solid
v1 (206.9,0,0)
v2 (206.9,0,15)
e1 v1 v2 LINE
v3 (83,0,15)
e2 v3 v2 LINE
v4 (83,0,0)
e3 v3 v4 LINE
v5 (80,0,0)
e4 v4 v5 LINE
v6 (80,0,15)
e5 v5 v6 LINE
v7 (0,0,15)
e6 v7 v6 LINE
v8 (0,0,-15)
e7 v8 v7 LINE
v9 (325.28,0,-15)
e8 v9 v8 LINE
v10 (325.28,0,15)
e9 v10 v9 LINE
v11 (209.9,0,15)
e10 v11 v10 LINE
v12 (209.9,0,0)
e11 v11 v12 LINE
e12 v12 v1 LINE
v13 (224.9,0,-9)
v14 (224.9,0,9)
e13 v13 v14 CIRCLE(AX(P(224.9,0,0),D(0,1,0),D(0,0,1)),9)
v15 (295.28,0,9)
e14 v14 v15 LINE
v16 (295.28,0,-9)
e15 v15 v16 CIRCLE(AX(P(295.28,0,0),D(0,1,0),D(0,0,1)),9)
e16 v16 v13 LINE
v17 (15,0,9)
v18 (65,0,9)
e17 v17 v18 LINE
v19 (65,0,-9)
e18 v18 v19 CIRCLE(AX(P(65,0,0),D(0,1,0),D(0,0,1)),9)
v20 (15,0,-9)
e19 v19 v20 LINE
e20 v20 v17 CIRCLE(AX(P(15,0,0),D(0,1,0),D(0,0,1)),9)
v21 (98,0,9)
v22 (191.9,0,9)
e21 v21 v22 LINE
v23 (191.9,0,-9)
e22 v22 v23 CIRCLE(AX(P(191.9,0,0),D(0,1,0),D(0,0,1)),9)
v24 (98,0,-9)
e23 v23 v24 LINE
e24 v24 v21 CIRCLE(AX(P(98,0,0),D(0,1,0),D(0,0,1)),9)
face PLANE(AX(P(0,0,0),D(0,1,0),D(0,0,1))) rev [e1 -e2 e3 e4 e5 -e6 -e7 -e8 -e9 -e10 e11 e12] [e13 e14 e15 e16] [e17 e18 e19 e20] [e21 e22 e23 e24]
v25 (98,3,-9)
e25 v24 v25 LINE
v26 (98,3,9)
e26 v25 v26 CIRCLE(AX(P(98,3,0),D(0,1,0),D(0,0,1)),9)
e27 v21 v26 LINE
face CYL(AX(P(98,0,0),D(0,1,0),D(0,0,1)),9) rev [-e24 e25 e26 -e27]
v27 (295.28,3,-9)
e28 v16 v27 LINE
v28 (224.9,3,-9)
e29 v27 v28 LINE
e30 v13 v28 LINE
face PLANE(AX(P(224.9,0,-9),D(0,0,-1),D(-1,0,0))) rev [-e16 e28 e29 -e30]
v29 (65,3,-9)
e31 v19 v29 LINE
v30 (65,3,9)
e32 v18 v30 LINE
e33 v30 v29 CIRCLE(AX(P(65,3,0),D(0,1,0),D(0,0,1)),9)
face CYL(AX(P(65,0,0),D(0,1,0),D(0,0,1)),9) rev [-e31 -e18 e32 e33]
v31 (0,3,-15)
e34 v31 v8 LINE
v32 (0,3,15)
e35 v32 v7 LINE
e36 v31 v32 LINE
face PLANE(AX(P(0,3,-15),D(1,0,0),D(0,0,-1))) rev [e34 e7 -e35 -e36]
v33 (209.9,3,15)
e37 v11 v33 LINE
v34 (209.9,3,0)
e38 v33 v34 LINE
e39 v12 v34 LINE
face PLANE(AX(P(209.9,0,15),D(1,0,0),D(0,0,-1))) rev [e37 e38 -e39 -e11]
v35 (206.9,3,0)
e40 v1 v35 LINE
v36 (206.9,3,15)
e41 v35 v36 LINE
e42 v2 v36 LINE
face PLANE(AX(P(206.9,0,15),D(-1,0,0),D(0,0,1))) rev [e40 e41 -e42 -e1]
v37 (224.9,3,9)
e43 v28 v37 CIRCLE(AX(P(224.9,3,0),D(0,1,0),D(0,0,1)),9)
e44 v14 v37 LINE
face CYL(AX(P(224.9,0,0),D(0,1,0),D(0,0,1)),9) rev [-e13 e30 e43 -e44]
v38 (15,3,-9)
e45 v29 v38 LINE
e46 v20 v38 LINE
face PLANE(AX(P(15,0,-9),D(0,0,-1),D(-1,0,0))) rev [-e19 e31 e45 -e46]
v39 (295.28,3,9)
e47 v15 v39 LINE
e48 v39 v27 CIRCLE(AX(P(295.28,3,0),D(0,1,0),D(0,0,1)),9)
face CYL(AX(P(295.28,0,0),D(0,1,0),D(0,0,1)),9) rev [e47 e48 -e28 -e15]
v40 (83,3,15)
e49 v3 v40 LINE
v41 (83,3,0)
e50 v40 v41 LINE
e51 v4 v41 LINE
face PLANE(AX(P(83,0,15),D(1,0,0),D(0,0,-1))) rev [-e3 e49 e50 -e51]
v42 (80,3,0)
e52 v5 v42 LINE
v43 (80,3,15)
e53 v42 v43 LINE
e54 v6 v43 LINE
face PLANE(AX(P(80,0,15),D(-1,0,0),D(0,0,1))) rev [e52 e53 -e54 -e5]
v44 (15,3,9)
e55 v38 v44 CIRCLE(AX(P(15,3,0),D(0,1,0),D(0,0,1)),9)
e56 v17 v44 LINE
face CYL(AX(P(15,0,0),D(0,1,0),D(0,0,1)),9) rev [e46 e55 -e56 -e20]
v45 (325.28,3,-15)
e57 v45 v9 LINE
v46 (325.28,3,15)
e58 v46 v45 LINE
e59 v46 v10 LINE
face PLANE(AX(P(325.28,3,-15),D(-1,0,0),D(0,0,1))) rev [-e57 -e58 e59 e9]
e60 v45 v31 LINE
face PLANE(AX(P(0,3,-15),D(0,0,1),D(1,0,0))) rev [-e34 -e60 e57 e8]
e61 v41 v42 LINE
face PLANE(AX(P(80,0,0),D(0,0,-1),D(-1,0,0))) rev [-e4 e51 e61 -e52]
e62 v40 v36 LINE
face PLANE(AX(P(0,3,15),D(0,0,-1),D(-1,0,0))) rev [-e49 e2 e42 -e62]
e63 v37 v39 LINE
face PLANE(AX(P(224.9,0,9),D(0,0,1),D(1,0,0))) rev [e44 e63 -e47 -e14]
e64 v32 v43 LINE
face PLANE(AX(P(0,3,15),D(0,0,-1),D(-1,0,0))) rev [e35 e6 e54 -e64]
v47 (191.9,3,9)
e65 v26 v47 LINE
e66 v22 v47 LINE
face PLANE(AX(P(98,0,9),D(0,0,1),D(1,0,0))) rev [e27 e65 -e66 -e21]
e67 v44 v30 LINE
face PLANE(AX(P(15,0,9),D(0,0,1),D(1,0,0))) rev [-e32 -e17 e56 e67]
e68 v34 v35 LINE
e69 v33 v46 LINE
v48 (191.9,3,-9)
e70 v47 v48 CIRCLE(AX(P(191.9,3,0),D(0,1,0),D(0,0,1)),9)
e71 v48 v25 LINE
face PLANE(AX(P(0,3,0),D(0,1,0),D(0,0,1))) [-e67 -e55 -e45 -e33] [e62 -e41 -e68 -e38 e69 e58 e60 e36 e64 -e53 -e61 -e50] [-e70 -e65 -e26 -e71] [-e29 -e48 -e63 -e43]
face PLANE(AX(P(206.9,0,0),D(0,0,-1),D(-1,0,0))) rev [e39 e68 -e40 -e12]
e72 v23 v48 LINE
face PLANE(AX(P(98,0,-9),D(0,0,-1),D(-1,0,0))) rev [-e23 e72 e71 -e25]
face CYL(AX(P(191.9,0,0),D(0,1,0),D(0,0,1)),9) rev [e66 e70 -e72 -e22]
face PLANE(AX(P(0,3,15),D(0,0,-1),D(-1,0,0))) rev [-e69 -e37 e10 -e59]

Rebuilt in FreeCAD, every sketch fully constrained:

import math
import FreeCAD as App
import Part
import Sketcher

V = App.Vector

doc = App.newDocument("Part")
body = doc.addObject("PartDesign::Body", "Body")

sketch1 = doc.addObject("Sketcher::SketchObject", "Sketch")
body.addObject(sketch1)
sketch1.AttachmentSupport = (doc.XZ_Plane, [""])
sketch1.MapMode = "FlatFace"
sketch1.addGeometry([
    Part.LineSegment(V(0, -15, 0), V(0, 15, 0)),
    Part.LineSegment(V(0, 15, 0), V(325, 15, 0)),
    Part.LineSegment(V(325, 15, 0), V(325, -15, 0)),
    Part.LineSegment(V(325, -15, 0), V(0, -15, 0)),
], False)
sketch1.addConstraint([
    Sketcher.Constraint("Coincident", 0, 2, 1, 1),
    Sketcher.Constraint("Coincident", 1, 2, 2, 1),
    Sketcher.Constraint("Coincident", 2, 2, 3, 1),
    Sketcher.Constraint("Coincident", 3, 2, 0, 1),
    Sketcher.Constraint("Vertical", 0),
    Sketcher.Constraint("Horizontal", 1),
    Sketcher.Constraint("Vertical", 2),
    Sketcher.Constraint("Horizontal", 3),
    Sketcher.Constraint("Symmetric", 0, 2, 3, 2, -1, 1),
    Sketcher.Constraint("DistanceY", 0, 1, 0, 2, 30.0),
    Sketcher.Constraint("DistanceX", 1, 1, 1, 2, 325.28),
])
pad1 = doc.addObject("PartDesign::Pad", "Pad")
body.addObject(pad1)
pad1.Profile = sketch1
pad1.Length = 3
pad1.Reversed = True

sketch2 = doc.addObject("Sketcher::SketchObject", "Sketch001")
body.addObject(sketch2)
sketch2.AttachmentSupport = (doc.XZ_Plane, [""])
sketch2.MapMode = "FlatFace"
sketch2.AttachmentOffset = App.Placement(V(0, 0, -3), App.Rotation())
sketch2.addGeometry([
    Part.LineSegment(V(80, 0, 0), V(80, 15, 0)),
    Part.LineSegment(V(80, 15, 0), V(83, 15, 0)),
    Part.LineSegment(V(83, 15, 0), V(83, 0, 0)),
    Part.LineSegment(V(83, 0, 0), V(80, 0, 0)),
    Part.LineSegment(V(206.9, 0, 0), V(206.9, 15, 0)),
    Part.LineSegment(V(206.9, 15, 0), V(209.9, 15, 0)),
    Part.LineSegment(V(209.9, 15, 0), V(209.9, 0, 0)),
    Part.LineSegment(V(209.9, 0, 0), V(206.9, 0, 0)),
], False)
sketch2.addConstraint([
    Sketcher.Constraint("Coincident", 0, 2, 1, 1),
    Sketcher.Constraint("Coincident", 1, 2, 2, 1),
    Sketcher.Constraint("Coincident", 2, 2, 3, 1),
    Sketcher.Constraint("Coincident", 3, 2, 0, 1),
    Sketcher.Constraint("Coincident", 4, 2, 5, 1),
    Sketcher.Constraint("Coincident", 5, 2, 6, 1),
    Sketcher.Constraint("Coincident", 6, 2, 7, 1),
    Sketcher.Constraint("Coincident", 7, 2, 4, 1),
    Sketcher.Constraint("Vertical", 0),
    Sketcher.Constraint("Horizontal", 1),
    Sketcher.Constraint("Vertical", 2),
    Sketcher.Constraint("Horizontal", 3),
    Sketcher.Constraint("Vertical", 4),
    Sketcher.Constraint("Horizontal", 5),
    Sketcher.Constraint("Vertical", 6),
    Sketcher.Constraint("Horizontal", 7),
    Sketcher.Constraint("PointOnObject", 2, 2, -1),
    Sketcher.Constraint("PointOnObject", 6, 2, -1),
    Sketcher.Constraint("Horizontal", 1, 2, 4, 2),
    Sketcher.Constraint("Equal", 3, 5),
    Sketcher.Constraint("DistanceX", 1, 1, 1, 2, 3.0),
    Sketcher.Constraint("DistanceY", 0, 1, 0, 2, 15.0),
    Sketcher.Constraint("DistanceX", -1, 1, 0, 2, 80.0),
    Sketcher.Constraint("DistanceX", -1, 1, 4, 2, 206.9),
])
pocket1 = doc.addObject("PartDesign::Pocket", "Pocket")
body.addObject(pocket1)
pocket1.Profile = sketch2
pocket1.Type = "ThroughAll"
pocket1.Midplane = True

sketch3 = doc.addObject("Sketcher::SketchObject", "Sketch002")
body.addObject(sketch3)
sketch3.AttachmentSupport = (doc.XZ_Plane, [""])
sketch3.MapMode = "FlatFace"
sketch3.AttachmentOffset = App.Placement(V(0, 0, -3), App.Rotation())
sketch3.addGeometry([
    Part.LineSegment(V(65, -9, 0), V(15, -9, 0)),
    Part.ArcOfCircle(Part.Circle(V(15, 0, 0), V(0, 0, 1), 9), math.radians(90), math.radians(270)),
    Part.LineSegment(V(15, 9, 0), V(65, 9, 0)),
    Part.ArcOfCircle(Part.Circle(V(65, 0, 0), V(0, 0, 1), 9), math.radians(-90), math.radians(90)),
    Part.LineSegment(V(192, -9, 0), V(98, -9, 0)),
    Part.ArcOfCircle(Part.Circle(V(98, 0, 0), V(0, 0, 1), 9), math.radians(90), math.radians(270)),
    Part.LineSegment(V(98, 9, 0), V(192, 9, 0)),
    Part.ArcOfCircle(Part.Circle(V(192, 0, 0), V(0, 0, 1), 9), math.radians(-90), math.radians(90)),
    Part.LineSegment(V(295, -9, 0), V(225, -9, 0)),
    Part.ArcOfCircle(Part.Circle(V(225, 0, 0), V(0, 0, 1), 9), math.radians(90), math.radians(270)),
    Part.LineSegment(V(225, 9, 0), V(295, 9, 0)),
    Part.ArcOfCircle(Part.Circle(V(295, 0, 0), V(0, 0, 1), 9), math.radians(-90), math.radians(90)),
], False)
sketch3.addConstraint([
    Sketcher.Constraint("Tangent", 0, 2, 1, 2),
    Sketcher.Constraint("Tangent", 1, 1, 2, 1),
    Sketcher.Constraint("Tangent", 2, 2, 3, 2),
    Sketcher.Constraint("Tangent", 3, 1, 0, 1),
    Sketcher.Constraint("Tangent", 4, 2, 5, 2),
    Sketcher.Constraint("Tangent", 5, 1, 6, 1),
    Sketcher.Constraint("Tangent", 6, 2, 7, 2),
    Sketcher.Constraint("Tangent", 7, 1, 4, 1),
    Sketcher.Constraint("Tangent", 8, 2, 9, 2),
    Sketcher.Constraint("Tangent", 9, 1, 10, 1),
    Sketcher.Constraint("Tangent", 10, 2, 11, 2),
    Sketcher.Constraint("Tangent", 11, 1, 8, 1),
    Sketcher.Constraint("Horizontal", 0),
    Sketcher.Constraint("Horizontal", 2),
    Sketcher.Constraint("Horizontal", 4),
    Sketcher.Constraint("Horizontal", 6),
    Sketcher.Constraint("Horizontal", 8),
    Sketcher.Constraint("Horizontal", 10),
    Sketcher.Constraint("Equal", 3, 5),
    Sketcher.Constraint("Equal", 7, 9),
    Sketcher.Constraint("PointOnObject", 1, 3, -1),
    Sketcher.Constraint("PointOnObject", 5, 3, -1),
    Sketcher.Constraint("PointOnObject", 9, 3, -1),
    Sketcher.Constraint("Radius", 1, 9.0),
    Sketcher.Constraint("DistanceX", 0, 2, 0, 1, 50.0),
    Sketcher.Constraint("DistanceX", 4, 2, 4, 1, 93.9),
    Sketcher.Constraint("DistanceX", -1, 1, 1, 3, 15.0),
    Sketcher.Constraint("DistanceX", -1, 1, 5, 3, 98.0),
    Sketcher.Constraint("DistanceX", 7, 3, 9, 3, 33.0),
    Sketcher.Constraint("DistanceX", 8, 2, 8, 1, 70.38),
])
pocket2 = doc.addObject("PartDesign::Pocket", "Pocket001")
body.addObject(pocket2)
pocket2.Profile = sketch3
pocket2.Type = "ThroughAll"
pocket2.Reversed = True

doc.recompute()
